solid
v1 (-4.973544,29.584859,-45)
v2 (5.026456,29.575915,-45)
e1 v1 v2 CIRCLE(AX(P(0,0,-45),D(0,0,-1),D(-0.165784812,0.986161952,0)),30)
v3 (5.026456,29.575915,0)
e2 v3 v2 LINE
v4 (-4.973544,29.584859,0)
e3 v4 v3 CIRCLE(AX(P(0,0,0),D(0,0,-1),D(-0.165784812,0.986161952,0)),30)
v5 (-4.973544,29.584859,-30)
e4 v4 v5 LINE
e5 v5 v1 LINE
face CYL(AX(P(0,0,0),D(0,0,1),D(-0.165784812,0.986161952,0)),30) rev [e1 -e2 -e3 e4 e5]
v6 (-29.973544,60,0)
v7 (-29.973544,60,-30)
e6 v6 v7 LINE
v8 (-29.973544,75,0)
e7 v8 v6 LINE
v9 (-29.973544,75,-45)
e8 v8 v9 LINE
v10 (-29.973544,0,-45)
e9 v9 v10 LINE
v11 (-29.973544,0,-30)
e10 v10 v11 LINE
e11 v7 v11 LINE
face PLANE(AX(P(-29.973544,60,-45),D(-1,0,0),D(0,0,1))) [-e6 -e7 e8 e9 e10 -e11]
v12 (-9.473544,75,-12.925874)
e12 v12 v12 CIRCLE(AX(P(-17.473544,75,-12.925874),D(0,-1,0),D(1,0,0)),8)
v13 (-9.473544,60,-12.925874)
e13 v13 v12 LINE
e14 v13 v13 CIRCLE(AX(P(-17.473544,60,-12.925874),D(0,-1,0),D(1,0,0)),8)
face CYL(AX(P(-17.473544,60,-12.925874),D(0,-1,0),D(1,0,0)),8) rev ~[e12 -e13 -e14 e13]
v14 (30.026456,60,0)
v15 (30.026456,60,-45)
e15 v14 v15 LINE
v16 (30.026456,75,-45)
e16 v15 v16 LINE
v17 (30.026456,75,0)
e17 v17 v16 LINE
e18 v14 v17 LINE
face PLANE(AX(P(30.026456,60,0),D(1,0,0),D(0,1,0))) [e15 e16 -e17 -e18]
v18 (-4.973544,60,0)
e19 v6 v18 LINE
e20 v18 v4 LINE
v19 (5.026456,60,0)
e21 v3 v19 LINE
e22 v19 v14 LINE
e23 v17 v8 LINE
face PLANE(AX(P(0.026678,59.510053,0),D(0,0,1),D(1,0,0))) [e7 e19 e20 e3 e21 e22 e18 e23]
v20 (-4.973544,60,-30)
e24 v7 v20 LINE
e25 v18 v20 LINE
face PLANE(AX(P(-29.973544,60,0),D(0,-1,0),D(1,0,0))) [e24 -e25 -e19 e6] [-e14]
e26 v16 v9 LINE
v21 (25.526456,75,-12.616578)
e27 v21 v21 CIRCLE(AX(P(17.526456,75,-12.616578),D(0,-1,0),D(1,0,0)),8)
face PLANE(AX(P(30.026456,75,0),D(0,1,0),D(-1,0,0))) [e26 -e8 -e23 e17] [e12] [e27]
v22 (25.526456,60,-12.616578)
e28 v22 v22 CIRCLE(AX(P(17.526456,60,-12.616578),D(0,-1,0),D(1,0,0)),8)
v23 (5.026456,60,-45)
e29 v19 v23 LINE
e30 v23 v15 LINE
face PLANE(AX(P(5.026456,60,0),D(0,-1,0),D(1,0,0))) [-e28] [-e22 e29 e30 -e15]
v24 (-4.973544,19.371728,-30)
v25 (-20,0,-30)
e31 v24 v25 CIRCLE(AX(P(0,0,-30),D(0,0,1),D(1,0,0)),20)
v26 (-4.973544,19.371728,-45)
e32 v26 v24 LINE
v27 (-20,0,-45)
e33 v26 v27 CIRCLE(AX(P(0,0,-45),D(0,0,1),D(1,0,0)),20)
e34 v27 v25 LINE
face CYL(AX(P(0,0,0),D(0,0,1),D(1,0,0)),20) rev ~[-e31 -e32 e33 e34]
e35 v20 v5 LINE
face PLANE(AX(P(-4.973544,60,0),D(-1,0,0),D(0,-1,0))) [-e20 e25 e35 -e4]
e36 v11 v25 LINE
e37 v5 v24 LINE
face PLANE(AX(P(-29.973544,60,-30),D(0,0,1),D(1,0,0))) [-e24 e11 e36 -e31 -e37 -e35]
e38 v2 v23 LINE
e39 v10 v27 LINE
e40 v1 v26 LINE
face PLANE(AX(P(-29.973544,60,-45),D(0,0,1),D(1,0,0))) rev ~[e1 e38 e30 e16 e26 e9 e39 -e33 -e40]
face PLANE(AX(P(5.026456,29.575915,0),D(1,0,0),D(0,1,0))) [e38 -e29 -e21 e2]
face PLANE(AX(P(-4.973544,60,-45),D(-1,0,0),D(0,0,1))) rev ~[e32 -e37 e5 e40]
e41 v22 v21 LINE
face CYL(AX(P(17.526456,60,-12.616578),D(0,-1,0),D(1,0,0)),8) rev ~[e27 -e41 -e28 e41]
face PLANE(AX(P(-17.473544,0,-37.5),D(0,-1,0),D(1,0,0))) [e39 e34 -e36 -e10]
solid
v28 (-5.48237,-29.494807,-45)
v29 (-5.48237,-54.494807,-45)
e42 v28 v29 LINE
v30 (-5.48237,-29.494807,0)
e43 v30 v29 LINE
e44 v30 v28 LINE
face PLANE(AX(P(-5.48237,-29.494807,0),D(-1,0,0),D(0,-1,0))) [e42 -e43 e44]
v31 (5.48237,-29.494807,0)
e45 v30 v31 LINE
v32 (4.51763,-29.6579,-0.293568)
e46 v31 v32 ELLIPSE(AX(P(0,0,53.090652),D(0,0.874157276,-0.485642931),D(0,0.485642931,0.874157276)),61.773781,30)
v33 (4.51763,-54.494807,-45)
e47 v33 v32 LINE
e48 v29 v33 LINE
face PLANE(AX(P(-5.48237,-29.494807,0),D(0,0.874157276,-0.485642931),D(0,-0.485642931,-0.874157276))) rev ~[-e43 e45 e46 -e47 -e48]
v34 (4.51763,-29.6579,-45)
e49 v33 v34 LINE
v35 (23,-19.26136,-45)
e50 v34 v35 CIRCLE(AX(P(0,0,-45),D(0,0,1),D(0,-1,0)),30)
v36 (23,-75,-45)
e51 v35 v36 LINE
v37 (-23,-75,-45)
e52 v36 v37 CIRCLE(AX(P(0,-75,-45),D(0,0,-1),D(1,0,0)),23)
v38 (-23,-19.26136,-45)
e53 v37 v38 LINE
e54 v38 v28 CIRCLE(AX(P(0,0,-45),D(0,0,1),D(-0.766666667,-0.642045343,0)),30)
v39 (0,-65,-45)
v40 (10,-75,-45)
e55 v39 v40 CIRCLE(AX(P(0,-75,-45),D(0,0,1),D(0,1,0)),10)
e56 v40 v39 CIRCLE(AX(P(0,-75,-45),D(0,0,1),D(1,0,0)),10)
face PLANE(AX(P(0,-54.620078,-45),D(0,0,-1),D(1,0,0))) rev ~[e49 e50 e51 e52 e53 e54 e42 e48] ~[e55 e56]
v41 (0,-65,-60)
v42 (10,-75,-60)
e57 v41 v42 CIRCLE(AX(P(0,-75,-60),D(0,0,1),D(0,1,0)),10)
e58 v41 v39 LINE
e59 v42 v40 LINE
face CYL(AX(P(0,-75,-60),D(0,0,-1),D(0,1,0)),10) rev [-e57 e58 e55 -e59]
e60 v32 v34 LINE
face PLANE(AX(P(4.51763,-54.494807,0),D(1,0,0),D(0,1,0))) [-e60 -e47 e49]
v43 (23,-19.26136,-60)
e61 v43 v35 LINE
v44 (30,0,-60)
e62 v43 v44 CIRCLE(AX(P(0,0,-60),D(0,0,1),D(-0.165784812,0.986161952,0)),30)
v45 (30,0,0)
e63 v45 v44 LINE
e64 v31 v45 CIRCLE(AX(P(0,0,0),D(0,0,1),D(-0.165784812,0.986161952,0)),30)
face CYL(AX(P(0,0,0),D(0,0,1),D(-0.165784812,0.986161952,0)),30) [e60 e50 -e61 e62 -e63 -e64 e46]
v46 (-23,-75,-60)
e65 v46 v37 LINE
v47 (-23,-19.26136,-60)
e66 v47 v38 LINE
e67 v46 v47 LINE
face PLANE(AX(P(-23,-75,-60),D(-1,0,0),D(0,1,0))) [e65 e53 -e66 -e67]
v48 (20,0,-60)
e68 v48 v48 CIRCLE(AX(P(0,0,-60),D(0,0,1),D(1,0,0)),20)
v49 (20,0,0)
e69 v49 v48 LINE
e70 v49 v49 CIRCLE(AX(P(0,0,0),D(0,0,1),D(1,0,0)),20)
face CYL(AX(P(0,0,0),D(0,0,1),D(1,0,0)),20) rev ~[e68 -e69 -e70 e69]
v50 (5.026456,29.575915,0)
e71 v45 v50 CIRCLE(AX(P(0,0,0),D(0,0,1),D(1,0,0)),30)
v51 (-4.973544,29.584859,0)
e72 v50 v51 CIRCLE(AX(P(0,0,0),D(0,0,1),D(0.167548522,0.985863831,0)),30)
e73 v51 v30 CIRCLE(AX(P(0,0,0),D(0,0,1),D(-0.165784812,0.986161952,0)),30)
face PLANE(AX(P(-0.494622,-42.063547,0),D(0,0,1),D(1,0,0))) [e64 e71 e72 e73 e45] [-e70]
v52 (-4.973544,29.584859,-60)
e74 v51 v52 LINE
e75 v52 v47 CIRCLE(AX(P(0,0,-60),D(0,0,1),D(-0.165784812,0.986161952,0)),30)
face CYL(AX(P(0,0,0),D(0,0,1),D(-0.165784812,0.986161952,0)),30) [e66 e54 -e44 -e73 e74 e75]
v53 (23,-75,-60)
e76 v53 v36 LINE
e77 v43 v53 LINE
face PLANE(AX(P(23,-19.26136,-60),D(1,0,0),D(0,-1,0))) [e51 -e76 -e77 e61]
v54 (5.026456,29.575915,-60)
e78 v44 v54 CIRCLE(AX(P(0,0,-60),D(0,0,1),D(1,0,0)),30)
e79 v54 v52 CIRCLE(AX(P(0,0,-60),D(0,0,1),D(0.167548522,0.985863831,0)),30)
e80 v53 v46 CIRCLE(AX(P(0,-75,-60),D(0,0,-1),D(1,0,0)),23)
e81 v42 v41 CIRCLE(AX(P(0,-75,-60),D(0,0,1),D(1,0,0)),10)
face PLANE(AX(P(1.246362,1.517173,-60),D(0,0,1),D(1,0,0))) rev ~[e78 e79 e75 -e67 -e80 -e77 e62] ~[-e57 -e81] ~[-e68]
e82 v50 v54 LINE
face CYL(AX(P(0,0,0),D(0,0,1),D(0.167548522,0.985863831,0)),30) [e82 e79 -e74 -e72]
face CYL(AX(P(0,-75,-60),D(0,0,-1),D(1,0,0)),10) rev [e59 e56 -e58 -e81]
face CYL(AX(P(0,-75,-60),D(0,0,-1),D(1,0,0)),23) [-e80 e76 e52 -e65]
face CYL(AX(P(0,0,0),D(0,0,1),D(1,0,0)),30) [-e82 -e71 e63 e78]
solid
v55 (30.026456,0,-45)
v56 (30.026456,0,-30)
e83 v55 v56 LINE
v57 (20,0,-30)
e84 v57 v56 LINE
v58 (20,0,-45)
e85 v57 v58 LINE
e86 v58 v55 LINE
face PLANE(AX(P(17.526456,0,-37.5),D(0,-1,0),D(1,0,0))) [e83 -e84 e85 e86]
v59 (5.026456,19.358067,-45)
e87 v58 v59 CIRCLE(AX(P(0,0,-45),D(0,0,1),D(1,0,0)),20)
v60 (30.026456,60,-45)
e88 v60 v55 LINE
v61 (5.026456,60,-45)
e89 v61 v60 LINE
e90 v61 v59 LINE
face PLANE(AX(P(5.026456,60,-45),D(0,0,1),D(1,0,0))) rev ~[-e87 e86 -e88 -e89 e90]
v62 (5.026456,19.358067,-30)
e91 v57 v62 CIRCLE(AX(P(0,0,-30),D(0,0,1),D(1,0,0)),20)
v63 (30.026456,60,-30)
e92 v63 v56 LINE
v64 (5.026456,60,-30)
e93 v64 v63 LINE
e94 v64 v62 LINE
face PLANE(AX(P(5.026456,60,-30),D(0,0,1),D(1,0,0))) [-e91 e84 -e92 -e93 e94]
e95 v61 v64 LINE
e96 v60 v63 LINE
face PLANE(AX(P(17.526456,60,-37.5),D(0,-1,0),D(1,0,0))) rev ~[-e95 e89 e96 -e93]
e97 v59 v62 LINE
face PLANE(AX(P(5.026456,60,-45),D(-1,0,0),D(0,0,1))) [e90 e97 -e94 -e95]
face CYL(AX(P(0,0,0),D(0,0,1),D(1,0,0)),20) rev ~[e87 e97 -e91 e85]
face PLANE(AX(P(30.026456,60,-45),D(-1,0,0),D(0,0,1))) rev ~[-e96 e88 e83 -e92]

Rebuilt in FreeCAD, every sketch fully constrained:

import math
import FreeCAD as App
import Part
import Sketcher

V = App.Vector


def add_polygon(sketch, points):
    """Adds a closed chain of lines whose ends are joined by coincident constraints."""
    first, n = sketch.GeometryCount, len(points)
    for a, b in zip(points, points[1:] + points[:1]):
        sketch.addGeometry(Part.LineSegment(App.Vector(*a, 0), App.Vector(*b, 0)), False)
    for i in range(n):
        sketch.addConstraint(Sketcher.Constraint("Coincident", first + i, 2, first + (i + 1) % n, 1))

doc = App.newDocument("Part")
body = doc.addObject("PartDesign::Body", "Body")

# Sketch on XY plane
sketch1 = doc.addObject("Sketcher::SketchObject", "Sketch")
body.addObject(sketch1)
sketch1.AttachmentSupport = (doc.XY_Plane, [""])
sketch1.MapMode = "FlatFace"
sketch1.addGeometry([
    Part.ArcOfCircle(Part.Circle(V(0, 0, 0), V(0, 0, 1), 30), math.radians(100), math.radians(360)),
    Part.ArcOfCircle(Part.Circle(V(0, 0, 0), V(0, 0, 1), 30), math.radians(0), math.radians(80)),
    Part.ArcOfCircle(Part.Circle(V(0, 0, 0), V(0, 0, 1), 30), math.radians(80.35), math.radians(99.54)),
    Part.Circle(V(0, 0, 0), V(0, 0, 1), 20),
], False)
sketch1.addConstraint([
    Sketcher.Constraint("Tangent", 0, 2, 1, 1),
    Sketcher.Constraint("Tangent", 1, 2, 2, 1),
    Sketcher.Constraint("Tangent", 2, 2, 0, 1),
    Sketcher.Constraint("Coincident", 0, 3, -1, 1),
    Sketcher.Constraint("Coincident", 3, 3, -1, 1),
    Sketcher.Constraint("PointOnObject", 0, 2, -1),
    Sketcher.Constraint("Diameter", 3, 40.0),
    Sketcher.Constraint("Radius", 0, 30.0),
    Sketcher.Constraint("DistanceX", 2, 2, 1, 2, 10.0),
    Sketcher.Constraint("DistanceY", -1, 1, 2, 2, 29.584859),
])
pad1 = doc.addObject("PartDesign::Pad", "Pad")
body.addObject(pad1)
pad1.Profile = sketch1
pad1.Length = 60
pad1.Reversed = True

# Sketch on XY plane
sketch2 = doc.addObject("Sketcher::SketchObject", "Sketch001")
body.addObject(sketch2)
sketch2.AttachmentSupport = (doc.XY_Plane, [""])
sketch2.MapMode = "FlatFace"
sketch2.AttachmentOffset = App.Placement(V(0, 0, -60), App.Rotation())
sketch2.addGeometry([
    Part.ArcOfCircle(Part.Circle(V(0, 0, 0), V(0, 0, 1), 30), math.radians(-140), math.radians(-90)),  # 0
    Part.ArcOfCircle(Part.Circle(V(0, 0, 0), V(0, 0, 1), 30), math.radians(-90), math.radians(-40)),  # 1
    Part.LineSegment(V(23, -19, 0), V(23, -75, 0)),  # 2
    Part.ArcOfCircle(Part.Circle(V(0, -75, 0), V(0, 0, 1), 23), math.radians(180), math.radians(360)),  # 3
    Part.LineSegment(V(-23, -75, 0), V(-23, -19, 0)),  # 4
    Part.ArcOfCircle(Part.Circle(V(0, -75, 0), V(0, 0, 1), 10), math.radians(90), math.radians(360)),  # 5
    Part.ArcOfCircle(Part.Circle(V(0, -75, 0), V(0, 0, 1), 10), math.radians(0), math.radians(90)),  # 6
], False)
sketch2.addConstraint([
    Sketcher.Constraint("Tangent", 0, 2, 1, 1),
    Sketcher.Constraint("Coincident", 1, 2, 2, 1),
    Sketcher.Constraint("Tangent", 2, 2, 3, 2),
    Sketcher.Constraint("Tangent", 3, 1, 4, 1),
    Sketcher.Constraint("Coincident", 4, 2, 0, 1),
    Sketcher.Constraint("Tangent", 5, 1, 6, 2),
    Sketcher.Constraint("Coincident", 6, 1, 5, 2),
    Sketcher.Constraint("Vertical", 2),
    Sketcher.Constraint("Vertical", 4),
    Sketcher.Constraint("Coincident", 0, 3, -1, 1),
    Sketcher.Constraint("Coincident", 5, 3, 3, 3),
    Sketcher.Constraint("Equal", 0, 1),
    Sketcher.Constraint("PointOnObject", 3, 3, -2),
    Sketcher.Constraint("PointOnObject", 0, 2, -2),
    Sketcher.Constraint("PointOnObject", 5, 1, -2),
    Sketcher.Constraint("Horizontal", 3, 1, 6, 1),
    Sketcher.Constraint("Radius", 0, 30.0),
    Sketcher.Constraint("Radius", 3, 23.0),
    Sketcher.Constraint("Radius", 5, 10.0),
    Sketcher.Constraint("DistanceY", 3, 3, -1, 1, 75.0),
])
pad2 = doc.addObject("PartDesign::Pad", "Pad001")
body.addObject(pad2)
pad2.Profile = sketch2
pad2.Length = 15

# Sketch on XY plane
sketch3 = doc.addObject("Sketcher::SketchObject", "Sketch002")
body.addObject(sketch3)
sketch3.AttachmentSupport = (doc.XY_Plane, [""])
sketch3.MapMode = "FlatFace"
sketch3.addGeometry([
    Part.ArcOfCircle(Part.Circle(V(0, 0, 0), V(0, 0, 1), 30), math.radians(-100.53), math.radians(-81.34)),
    Part.LineSegment(V(-5, -29, 0), V(-5, -54, 0)),
    Part.LineSegment(V(-5, -54, 0), V(5, -54, 0)),
    Part.LineSegment(V(5, -54, 0), V(5, -30, 0)),
], False)
sketch3.addConstraint([
    Sketcher.Constraint("Coincident", 0, 1, 1, 1),
    Sketcher.Constraint("Coincident", 1, 2, 2, 1),
    Sketcher.Constraint("Coincident", 2, 2, 3, 1),
    Sketcher.Constraint("Coincident", 3, 2, 0, 2),
    Sketcher.Constraint("Vertical", 1),
    Sketcher.Constraint("Horizontal", 2),
    Sketcher.Constraint("Vertical", 3),
    Sketcher.Constraint("Coincident", 0, 3, -1, 1),
    Sketcher.Constraint("Radius", 0, 30.0),
    Sketcher.Constraint("DistanceX", 2, 1, 2, 2, 10.0),
    Sketcher.Constraint("DistanceY", 1, 2, 1, 1, 25.0),
    Sketcher.Constraint("DistanceY", 3, 2, -1, 1, 29.6579),
])
pad3 = doc.addObject("PartDesign::Pad", "Pad002")
body.addObject(pad3)
pad3.Profile = sketch3
pad3.Length = 45
pad3.Reversed = True

# Sketch on YZ plane
sketch4 = doc.addObject("Sketcher::SketchObject", "Sketch003")
body.addObject(sketch4)
sketch4.AttachmentSupport = (doc.YZ_Plane, [""])
sketch4.MapMode = "FlatFace"
sketch4.AttachmentOffset = App.Placement(V(0, 0, -5.48237), App.Rotation())
add_polygon(sketch4, [(-54, 0), (-29, 0), (-54, -45)])  # lines 0-2
sketch4.addConstraint([
    Sketcher.Constraint("Horizontal", 0),
    Sketcher.Constraint("Vertical", 2),
    Sketcher.Constraint("PointOnObject", 0, 2, -1),
    Sketcher.Constraint("DistanceX", 0, 1, 0, 2, 25.0),
    Sketcher.Constraint("DistanceY", 2, 1, 2, 2, 45.0),
    Sketcher.Constraint("DistanceX", 0, 2, -1, 1, 29.494807),
])
pocket1 = doc.addObject("PartDesign::Pocket", "Pocket")
body.addObject(pocket1)
pocket1.Profile = sketch4
pocket1.Length = 25
pocket1.Reversed = True
body2 = doc.addObject("PartDesign::Body", "Body001")

# Sketch on XY plane
sketch5 = doc.addObject("Sketcher::SketchObject", "Sketch004")
body2.addObject(sketch5)
sketch5.AttachmentSupport = (doc.getObject("XY_Plane001"), [""])
sketch5.MapMode = "FlatFace"
sketch5.addGeometry([
    Part.ArcOfCircle(Part.Circle(V(0, 0, 0), V(0, 0, 1), 30), math.radians(80.35), math.radians(99.54)),  # 0
    Part.LineSegment(V(5, 30, 0), V(5, 60, 0)),  # 1
    Part.LineSegment(V(5, 60, 0), V(30, 60, 0)),  # 2
    Part.LineSegment(V(30, 60, 0), V(30, 75, 0)),  # 3
    Part.LineSegment(V(30, 75, 0), V(-30, 75, 0)),  # 4
    Part.LineSegment(V(-30, 75, 0), V(-30, 60, 0)),  # 5
    Part.LineSegment(V(-30, 60, 0), V(-5, 60, 0)),  # 6
    Part.LineSegment(V(-5, 60, 0), V(-5, 30, 0)),  # 7
], False)
sketch5.addConstraint([
    Sketcher.Constraint("Coincident", 0, 1, 1, 1),
    Sketcher.Constraint("Coincident", 1, 2, 2, 1),
    Sketcher.Constraint("Coincident", 2, 2, 3, 1),
    Sketcher.Constraint("Coincident", 3, 2, 4, 1),
    Sketcher.Constraint("Coincident", 4, 2, 5, 1),
    Sketcher.Constraint("Coincident", 5, 2, 6, 1),
    Sketcher.Constraint("Coincident", 6, 2, 7, 1),
    Sketcher.Constraint("Coincident", 7, 2, 0, 2),
    Sketcher.Constraint("Vertical", 1),
    Sketcher.Constraint("Horizontal", 2),
    Sketcher.Constraint("Vertical", 3),
    Sketcher.Constraint("Horizontal", 4),
    Sketcher.Constraint("Vertical", 5),
    Sketcher.Constraint("Horizontal", 6),
    Sketcher.Constraint("Vertical", 7),
    Sketcher.Constraint("Coincident", 0, 3, -1, 1),
    Sketcher.Constraint("Horizontal", 2, 2, 5, 2),
    Sketcher.Constraint("Equal", 2, 6),
    Sketcher.Constraint("Radius", 0, 30.0),
    Sketcher.Constraint("DistanceX", 2, 1, 2, 2, 25.0),
    Sketcher.Constraint("DistanceX", 4, 2, 4, 1, 60.0),
    Sketcher.Constraint("DistanceY", 3, 1, 3, 2, 15.0),
    Sketcher.Constraint("DistanceY", -1, 1, 1, 2, 60.0),
    Sketcher.Constraint("DistanceY", 7, 2, 7, 1, 30.415141),
])
pad4 = doc.addObject("PartDesign::Pad", "Pad003")
body2.addObject(pad4)
pad4.Profile = sketch5
pad4.Length = 45
pad4.Reversed = True

# Sketch on XZ plane
sketch6 = doc.addObject("Sketcher::SketchObject", "Sketch005")
body2.addObject(sketch6)
sketch6.AttachmentSupport = (doc.getObject("XZ_Plane001"), [""])
sketch6.MapMode = "FlatFace"
sketch6.AttachmentOffset = App.Placement(V(0, 0, -60), App.Rotation())
sketch6.addGeometry([
    Part.Circle(V(-17, -13, 0), V(0, 0, 1), 8),
    Part.Circle(V(18, -13, 0), V(0, 0, 1), 8),
], False)
sketch6.addConstraint([
    Sketcher.Constraint("Equal", 0, 1),
    Sketcher.Constraint("Diameter", 0, 16.0),
    Sketcher.Constraint("DistanceX", 0, 3, 1, 3, 35.0),
    Sketcher.Constraint("DistanceY", 1, 3, -1, 1, 12.616578),
    Sketcher.Constraint("DistanceX", 0, 3, -1, 1, 17.473544),
    Sketcher.Constraint("DistanceY", 0, 3, -1, 1, 12.925874),
])
pocket2 = doc.addObject("PartDesign::Pocket", "Pocket001")
body2.addObject(pocket2)
pocket2.Profile = sketch6
pocket2.Length = 25

# Sketch on XZ plane
sketch7 = doc.addObject("Sketcher::SketchObject", "Sketch006")
body2.addObject(sketch7)
sketch7.AttachmentSupport = (doc.getObject("XZ_Plane001"), [""])
sketch7.MapMode = "FlatFace"
sketch7.AttachmentOffset = App.Placement(V(0, 0, -60), App.Rotation())
add_polygon(sketch7, [(-30, -30), (-30, -45), (-5, -45), (-5, -30)])  # lines 0-3
sketch7.addConstraint([
    Sketcher.Constraint("Vertical", 0),
    Sketcher.Constraint("Horizontal", 1),
    Sketcher.Constraint("Vertical", 2),
    Sketcher.Constraint("Horizontal", 3),
    Sketcher.Constraint("DistanceX", 1, 1, 1, 2, 25.0),
    Sketcher.Constraint("DistanceY", 0, 2, 0, 1, 15.0),
    Sketcher.Constraint("DistanceY", 0, 2, -1, 1, 45.0),
    Sketcher.Constraint("DistanceX", 0, 2, -1, 1, 29.973544),
])
pad5 = doc.addObject("PartDesign::Pad", "Pad004")
body2.addObject(pad5)
pad5.Profile = sketch7
pad5.Length = 60
body3 = doc.addObject("PartDesign::Body", "Body002")

# Sketch on XZ plane
sketch8 = doc.addObject("Sketcher::SketchObject", "Sketch007")
body3.addObject(sketch8)
sketch8.AttachmentSupport = (doc.getObject("XZ_Plane002"), [""])
sketch8.MapMode = "FlatFace"
sketch8.AttachmentOffset = App.Placement(V(0, 0, -60), App.Rotation())
add_polygon(sketch8, [(5, -30), (5, -45), (30, -45), (30, -30)])  # lines 0-3
sketch8.addConstraint([
    Sketcher.Constraint("Vertical", 0),
    Sketcher.Constraint("Horizontal", 1),
    Sketcher.Constraint("Vertical", 2),
    Sketcher.Constraint("Horizontal", 3),
    Sketcher.Constraint("DistanceX", 1, 1, 1, 2, 25.0),
    Sketcher.Constraint("DistanceY", 0, 2, 0, 1, 15.0),
    Sketcher.Constraint("DistanceY", 0, 2, -1, 1, 45.0),
    Sketcher.Constraint("DistanceX", -1, 1, 0, 2, 5.026456),
])
pad6 = doc.addObject("PartDesign::Pad", "Pad005")
body3.addObject(pad6)
pad6.Profile = sketch8
pad6.Length = 60
body4 = doc.addObject("PartDesign::Body", "Body003")

# Sketch on XY plane
sketch9 = doc.addObject("Sketcher::SketchObject", "Sketch008")
body4.addObject(sketch9)
sketch9.AttachmentSupport = (doc.getObject("XY_Plane003"), [""])
sketch9.MapMode = "FlatFace"
sketch9.addGeometry(Part.Circle(V(0, 0, 0), V(0, 0, 1), 20), False)
sketch9.addConstraint([
    Sketcher.Constraint("Coincident", 0, 3, -1, 1),
    Sketcher.Constraint("Diameter", 0, 40.0),
])
pad7 = doc.addObject("PartDesign::Pad", "Pad006")
body4.addObject(pad7)
pad7.Profile = sketch9
pad7.Length = 60.001
pad7.Reversed = True
doc.recompute()

body5 = doc.addObject("PartDesign::Body", "Body004")
body5.BaseFeature = body4
boolean = doc.addObject("PartDesign::Boolean", "Boolean")
body2.addObject(boolean)
boolean.Type = "Cut"
boolean.addObjects([body5])
doc.recompute()

boolean2 = doc.addObject("PartDesign::Boolean", "Boolean001")
body3.addObject(boolean2)
boolean2.Type = "Cut"
boolean2.addObjects([body4])

doc.recompute()
